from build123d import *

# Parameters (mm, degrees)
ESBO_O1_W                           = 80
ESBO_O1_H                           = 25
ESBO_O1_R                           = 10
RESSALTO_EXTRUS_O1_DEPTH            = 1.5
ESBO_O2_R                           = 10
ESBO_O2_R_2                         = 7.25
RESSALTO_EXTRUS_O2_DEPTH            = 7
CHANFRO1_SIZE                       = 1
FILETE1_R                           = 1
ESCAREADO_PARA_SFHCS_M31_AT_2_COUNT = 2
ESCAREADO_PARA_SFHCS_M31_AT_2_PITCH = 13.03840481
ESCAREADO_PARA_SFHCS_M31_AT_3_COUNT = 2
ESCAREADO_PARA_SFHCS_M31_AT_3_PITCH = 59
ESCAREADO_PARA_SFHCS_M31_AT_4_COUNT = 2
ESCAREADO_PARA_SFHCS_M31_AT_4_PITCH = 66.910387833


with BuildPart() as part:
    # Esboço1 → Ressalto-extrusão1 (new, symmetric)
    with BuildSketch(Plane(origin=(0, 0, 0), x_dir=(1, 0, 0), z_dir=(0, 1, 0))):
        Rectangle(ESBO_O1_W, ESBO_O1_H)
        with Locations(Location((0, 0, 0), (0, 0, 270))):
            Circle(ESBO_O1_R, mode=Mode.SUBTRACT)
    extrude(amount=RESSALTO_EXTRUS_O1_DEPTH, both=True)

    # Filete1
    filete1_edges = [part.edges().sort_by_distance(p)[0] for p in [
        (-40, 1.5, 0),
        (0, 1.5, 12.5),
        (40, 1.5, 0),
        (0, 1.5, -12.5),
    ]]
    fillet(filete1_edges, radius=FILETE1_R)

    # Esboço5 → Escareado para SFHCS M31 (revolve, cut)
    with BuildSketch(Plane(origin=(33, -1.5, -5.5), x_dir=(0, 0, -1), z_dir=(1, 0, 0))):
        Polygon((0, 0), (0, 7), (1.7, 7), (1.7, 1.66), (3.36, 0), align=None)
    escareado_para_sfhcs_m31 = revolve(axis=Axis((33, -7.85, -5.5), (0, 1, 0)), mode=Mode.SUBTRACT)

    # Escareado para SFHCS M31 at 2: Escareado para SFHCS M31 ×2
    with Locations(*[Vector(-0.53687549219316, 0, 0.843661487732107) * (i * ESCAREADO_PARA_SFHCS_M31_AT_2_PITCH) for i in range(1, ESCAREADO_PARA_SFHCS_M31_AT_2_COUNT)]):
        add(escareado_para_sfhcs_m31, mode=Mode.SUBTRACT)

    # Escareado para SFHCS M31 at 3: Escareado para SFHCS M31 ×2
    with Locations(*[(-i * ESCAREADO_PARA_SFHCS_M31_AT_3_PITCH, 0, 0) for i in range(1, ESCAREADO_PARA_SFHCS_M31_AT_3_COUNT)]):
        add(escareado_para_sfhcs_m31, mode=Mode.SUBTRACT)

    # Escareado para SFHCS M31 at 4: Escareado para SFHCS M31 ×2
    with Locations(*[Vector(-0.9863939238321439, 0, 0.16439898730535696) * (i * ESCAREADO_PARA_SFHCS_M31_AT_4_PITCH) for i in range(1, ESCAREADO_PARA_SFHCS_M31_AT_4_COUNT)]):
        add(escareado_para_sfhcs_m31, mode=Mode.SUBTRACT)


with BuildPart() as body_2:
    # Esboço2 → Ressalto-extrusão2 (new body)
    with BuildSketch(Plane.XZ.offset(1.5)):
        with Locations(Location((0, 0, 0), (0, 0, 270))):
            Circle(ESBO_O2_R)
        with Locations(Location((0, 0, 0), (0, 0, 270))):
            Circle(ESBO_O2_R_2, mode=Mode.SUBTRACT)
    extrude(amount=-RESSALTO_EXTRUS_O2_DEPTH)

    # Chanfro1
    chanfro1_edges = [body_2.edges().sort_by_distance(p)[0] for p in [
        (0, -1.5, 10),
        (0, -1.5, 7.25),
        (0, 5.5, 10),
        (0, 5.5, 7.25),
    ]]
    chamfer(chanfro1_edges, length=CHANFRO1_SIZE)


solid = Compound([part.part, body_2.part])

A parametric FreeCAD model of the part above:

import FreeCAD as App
import Part
import Sketcher
Q = App.Units.Quantity


def edges_at(feature, points):
    """Names of the edges that pass closest to the given points."""
    edges = feature.Shape.Edges
    near = lambda p: min(range(len(edges)), key=lambda i: edges[i].distToShape(Part.Vertex(*p))[0])
    return sorted({f"Edge{near(p) + 1}" for p in points})

doc = App.newDocument("Part")
params = doc.addObject("Spreadsheet::Sheet", "Params")
for row, (alias, value) in enumerate([
    ("sketch1_diameter", "20 mm"),
    ("sketch1_width", "80 mm"),
    ("sketch1_height", "25 mm"),
    ("pad1_length", "3 mm"),
    ("fillet_radius", "1 mm"),
    ("sketch2_width", "7 mm"),
    ("sketch2_height", "1.7 mm"),
    ("sketch2_width2", "5.34 mm"),
    ("groove_angle", "360 deg"),
    ("linearpattern_pitch", "13.038405 mm"),
    ("linearpattern2_pitch", "59 mm"),
    ("linearpattern3_pitch", "66.910388 mm"),
    ("sketch3_diameter", "20 mm"),
    ("sketch3_diameter2", "14.5 mm"),
    ("pad2_length", "7 mm"),
    ("chamfer_size", "1 mm"),
], start=1):
    params.set(f"A{row}", alias)
    params.set(f"B{row}", "=" + value)
    params.setAlias(f"B{row}", alias)

body = doc.addObject("PartDesign::Body", "Body")

sketch1 = body.newObject("Sketcher::SketchObject", "Sketch")
sketch1.AttachmentSupport = (doc.getObject("XZ_Plane"), [""])
sketch1.MapMode = "FlatFace"
sketch1.addGeometry([
    Part.LineSegment(App.Vector(-40, -12.5, 0), App.Vector(-40, 12.5, 0)),
    Part.LineSegment(App.Vector(-40, 12.5, 0), App.Vector(40, 12.5, 0)),
    Part.LineSegment(App.Vector(40, 12.5, 0), App.Vector(40, -12.5, 0)),
    Part.LineSegment(App.Vector(40, -12.5, 0), App.Vector(-40, -12.5, 0)),
    Part.Circle(App.Vector(0, 0, 0), App.Vector(0, 0, 1), 10),
], False)
sketch1.addConstraint([
    Sketcher.Constraint("Coincident", 0, 2, 1, 1),
    Sketcher.Constraint("Coincident", 1, 2, 2, 1),
    Sketcher.Constraint("Coincident", 2, 2, 3, 1),
    Sketcher.Constraint("Coincident", 3, 2, 0, 1),
    Sketcher.Constraint("Vertical", 0),
    Sketcher.Constraint("Horizontal", 1),
    Sketcher.Constraint("Vertical", 2),
    Sketcher.Constraint("Horizontal", 3),
    Sketcher.Constraint("Coincident", 4, 3, -1, 1),
    Sketcher.Constraint("Symmetric", 0, 2, 2, 2, -1, 1),
    Sketcher.Constraint("Diameter", 4, Q("20 mm")),
    Sketcher.Constraint("DistanceX", 1, 1, 1, 2, Q("80 mm")),
    Sketcher.Constraint("DistanceY", 0, 1, 0, 2, Q("25 mm")),
])
sketch1.setExpression("Constraints[10]", "Params.sketch1_diameter")
sketch1.setExpression("Constraints[11]", "Params.sketch1_width")
sketch1.setExpression("Constraints[12]", "Params.sketch1_height")
pad1 = body.newObject("PartDesign::Pad", "Pad")
pad1.Profile = sketch1
pad1.setExpression("Length", "Params.pad1_length")
pad1.Midplane = True
doc.recompute()

fillet = body.newObject("PartDesign::Fillet", "Fillet")
fillet.Base = (pad1, edges_at(pad1, [
    (-40, 1.5, 0),
    (0, 1.5, 12.5),
    (40, 1.5, 0),
    (0, 1.5, -12.5),
]))
fillet.setExpression("Radius", "Params.fillet_radius")

sketch2 = body.newObject("Sketcher::SketchObject", "Sketch001")
sketch2.AttachmentSupport = (doc.getObject("YZ_Plane"), [""])
sketch2.MapMode = "FlatFace"
sketch2.AttachmentOffset = App.Placement(App.Vector(0, 0, 33), App.Rotation())
sketch2.addGeometry([
    Part.LineSegment(App.Vector(5.5, -5.5, 0), App.Vector(-1.5, -5.5, 0)),
    Part.LineSegment(App.Vector(-1.5, -5.5, 0), App.Vector(-1.5, -8.86, 0)),
    Part.LineSegment(App.Vector(-1.5, -8.86, 0), App.Vector(0.16, -7.2, 0)),
    Part.LineSegment(App.Vector(0.16, -7.2, 0), App.Vector(5.5, -7.2, 0)),
    Part.LineSegment(App.Vector(5.5, -7.2, 0), App.Vector(5.5, -5.5, 0)),
], False)
sketch2.addGeometry(Part.LineSegment(App.Vector(-1.5, -5.5, 0), App.Vector(5.5, -5.5, 0)), True)
sketch2.addConstraint([
    Sketcher.Constraint("Coincident", 0, 2, 1, 1),
    Sketcher.Constraint("Coincident", 1, 2, 2, 1),
    Sketcher.Constraint("Coincident", 2, 2, 3, 1),
    Sketcher.Constraint("Coincident", 3, 2, 4, 1),
    Sketcher.Constraint("Coincident", 4, 2, 0, 1),
    Sketcher.Constraint("Horizontal", 0),
    Sketcher.Constraint("Vertical", 1),
    Sketcher.Constraint("Horizontal", 3),
    Sketcher.Constraint("Vertical", 4),
    Sketcher.Constraint("Horizontal", 5),
    Sketcher.Constraint("Coincident", 5, 1, 0, 2),
    Sketcher.Constraint("Vertical", 3, 2, 5, 2),
    Sketcher.Constraint("DistanceX", 0, 2, 0, 1, Q("7 mm")),
    Sketcher.Constraint("Angle", 2, Q("45 deg")),
    Sketcher.Constraint("DistanceY", 4, 1, 4, 2, Q("1.7 mm")),
    Sketcher.Constraint("DistanceX", 3, 1, 3, 2, Q("5.34 mm")),
    Sketcher.Constraint("DistanceX", 0, 2, -1, 1, Q("1.5 mm")),
    Sketcher.Constraint("DistanceY", 0, 2, -1, 1, Q("5.5 mm")),
])
sketch2.setExpression("Constraints[12]", "Params.sketch2_width")
sketch2.setExpression("Constraints[14]", "Params.sketch2_height")
sketch2.setExpression("Constraints[15]", "Params.sketch2_width2")
groove = body.newObject("PartDesign::Groove", "Groove")
groove.Profile = sketch2
groove.ReferenceAxis = (sketch2, ["Axis0"])
groove.setExpression("Angle", "Params.groove_angle")
doc.recompute()

datumline = body.newObject("PartDesign::Line", "DatumLine")
datumline.Placement = App.Placement(App.Vector(0, 0, 0), App.Rotation(App.Vector(0, 0, 1), App.Vector(-0.536875492, 0, 0.843661488)))
linearpattern = body.newObject("PartDesign::LinearPattern", "LinearPattern")
linearpattern.Originals = [groove]
linearpattern.Direction = (datumline, [""])
linearpattern.Mode = "offset"
linearpattern.setExpression("Offset", "Params.linearpattern_pitch")
linearpattern.Occurrences = 2
body.Tip = linearpattern
doc.recompute()

linearpattern2 = body.newObject("PartDesign::LinearPattern", "LinearPattern001")
linearpattern2.Originals = [groove]
linearpattern2.Direction = (doc.getObject("X_Axis"), [""])
linearpattern2.Mode = "offset"
linearpattern2.setExpression("Offset", "Params.linearpattern2_pitch")
linearpattern2.Occurrences = 2
linearpattern2.Reversed = True
body.Tip = linearpattern2
doc.recompute()

datumline2 = body.newObject("PartDesign::Line", "DatumLine001")
datumline2.Placement = App.Placement(App.Vector(0, 0, 0), App.Rotation(App.Vector(0, 0, 1), App.Vector(-0.986393924, 0, 0.164398987)))
linearpattern3 = body.newObject("PartDesign::LinearPattern", "LinearPattern002")
linearpattern3.Originals = [groove]
linearpattern3.Direction = (datumline2, [""])
linearpattern3.Mode = "offset"
linearpattern3.setExpression("Offset", "Params.linearpattern3_pitch")
linearpattern3.Occurrences = 2
body.Tip = linearpattern3
body2 = doc.addObject("PartDesign::Body", "Body001")

sketch3 = body2.newObject("Sketcher::SketchObject", "Sketch002")
sketch3.AttachmentSupport = (doc.getObject("XZ_Plane001"), [""])
sketch3.MapMode = "FlatFace"
sketch3.AttachmentOffset = App.Placement(App.Vector(0, 0, 1.5), App.Rotation())
sketch3.addGeometry([
    Part.Circle(App.Vector(0, 0, 0), App.Vector(0, 0, 1), 10),
    Part.Circle(App.Vector(0, 0, 0), App.Vector(0, 0, 1), 7.25),
], False)
sketch3.addConstraint([
    Sketcher.Constraint("Coincident", 0, 3, -1, 1),
    Sketcher.Constraint("Coincident", 1, 3, -1, 1),
    Sketcher.Constraint("Diameter", 0, Q("20 mm")),
    Sketcher.Constraint("Diameter", 1, Q("14.5 mm")),
])
sketch3.setExpression("Constraints[2]", "Params.sketch3_diameter")
sketch3.setExpression("Constraints[3]", "Params.sketch3_diameter2")
pad2 = body2.newObject("PartDesign::Pad", "Pad001")
pad2.Profile = sketch3
pad2.setExpression("Length", "Params.pad2_length")
pad2.Reversed = True
doc.recompute()

chamfer = body2.newObject("PartDesign::Chamfer", "Chamfer")
chamfer.Base = (pad2, edges_at(pad2, [
    (0, -1.5, 10),
    (0, -1.5, 7.25),
    (0, 5.5, 10),
    (0, 5.5, 7.25),
]))
chamfer.setExpression("Size", "Params.chamfer_size")

doc.recompute()
